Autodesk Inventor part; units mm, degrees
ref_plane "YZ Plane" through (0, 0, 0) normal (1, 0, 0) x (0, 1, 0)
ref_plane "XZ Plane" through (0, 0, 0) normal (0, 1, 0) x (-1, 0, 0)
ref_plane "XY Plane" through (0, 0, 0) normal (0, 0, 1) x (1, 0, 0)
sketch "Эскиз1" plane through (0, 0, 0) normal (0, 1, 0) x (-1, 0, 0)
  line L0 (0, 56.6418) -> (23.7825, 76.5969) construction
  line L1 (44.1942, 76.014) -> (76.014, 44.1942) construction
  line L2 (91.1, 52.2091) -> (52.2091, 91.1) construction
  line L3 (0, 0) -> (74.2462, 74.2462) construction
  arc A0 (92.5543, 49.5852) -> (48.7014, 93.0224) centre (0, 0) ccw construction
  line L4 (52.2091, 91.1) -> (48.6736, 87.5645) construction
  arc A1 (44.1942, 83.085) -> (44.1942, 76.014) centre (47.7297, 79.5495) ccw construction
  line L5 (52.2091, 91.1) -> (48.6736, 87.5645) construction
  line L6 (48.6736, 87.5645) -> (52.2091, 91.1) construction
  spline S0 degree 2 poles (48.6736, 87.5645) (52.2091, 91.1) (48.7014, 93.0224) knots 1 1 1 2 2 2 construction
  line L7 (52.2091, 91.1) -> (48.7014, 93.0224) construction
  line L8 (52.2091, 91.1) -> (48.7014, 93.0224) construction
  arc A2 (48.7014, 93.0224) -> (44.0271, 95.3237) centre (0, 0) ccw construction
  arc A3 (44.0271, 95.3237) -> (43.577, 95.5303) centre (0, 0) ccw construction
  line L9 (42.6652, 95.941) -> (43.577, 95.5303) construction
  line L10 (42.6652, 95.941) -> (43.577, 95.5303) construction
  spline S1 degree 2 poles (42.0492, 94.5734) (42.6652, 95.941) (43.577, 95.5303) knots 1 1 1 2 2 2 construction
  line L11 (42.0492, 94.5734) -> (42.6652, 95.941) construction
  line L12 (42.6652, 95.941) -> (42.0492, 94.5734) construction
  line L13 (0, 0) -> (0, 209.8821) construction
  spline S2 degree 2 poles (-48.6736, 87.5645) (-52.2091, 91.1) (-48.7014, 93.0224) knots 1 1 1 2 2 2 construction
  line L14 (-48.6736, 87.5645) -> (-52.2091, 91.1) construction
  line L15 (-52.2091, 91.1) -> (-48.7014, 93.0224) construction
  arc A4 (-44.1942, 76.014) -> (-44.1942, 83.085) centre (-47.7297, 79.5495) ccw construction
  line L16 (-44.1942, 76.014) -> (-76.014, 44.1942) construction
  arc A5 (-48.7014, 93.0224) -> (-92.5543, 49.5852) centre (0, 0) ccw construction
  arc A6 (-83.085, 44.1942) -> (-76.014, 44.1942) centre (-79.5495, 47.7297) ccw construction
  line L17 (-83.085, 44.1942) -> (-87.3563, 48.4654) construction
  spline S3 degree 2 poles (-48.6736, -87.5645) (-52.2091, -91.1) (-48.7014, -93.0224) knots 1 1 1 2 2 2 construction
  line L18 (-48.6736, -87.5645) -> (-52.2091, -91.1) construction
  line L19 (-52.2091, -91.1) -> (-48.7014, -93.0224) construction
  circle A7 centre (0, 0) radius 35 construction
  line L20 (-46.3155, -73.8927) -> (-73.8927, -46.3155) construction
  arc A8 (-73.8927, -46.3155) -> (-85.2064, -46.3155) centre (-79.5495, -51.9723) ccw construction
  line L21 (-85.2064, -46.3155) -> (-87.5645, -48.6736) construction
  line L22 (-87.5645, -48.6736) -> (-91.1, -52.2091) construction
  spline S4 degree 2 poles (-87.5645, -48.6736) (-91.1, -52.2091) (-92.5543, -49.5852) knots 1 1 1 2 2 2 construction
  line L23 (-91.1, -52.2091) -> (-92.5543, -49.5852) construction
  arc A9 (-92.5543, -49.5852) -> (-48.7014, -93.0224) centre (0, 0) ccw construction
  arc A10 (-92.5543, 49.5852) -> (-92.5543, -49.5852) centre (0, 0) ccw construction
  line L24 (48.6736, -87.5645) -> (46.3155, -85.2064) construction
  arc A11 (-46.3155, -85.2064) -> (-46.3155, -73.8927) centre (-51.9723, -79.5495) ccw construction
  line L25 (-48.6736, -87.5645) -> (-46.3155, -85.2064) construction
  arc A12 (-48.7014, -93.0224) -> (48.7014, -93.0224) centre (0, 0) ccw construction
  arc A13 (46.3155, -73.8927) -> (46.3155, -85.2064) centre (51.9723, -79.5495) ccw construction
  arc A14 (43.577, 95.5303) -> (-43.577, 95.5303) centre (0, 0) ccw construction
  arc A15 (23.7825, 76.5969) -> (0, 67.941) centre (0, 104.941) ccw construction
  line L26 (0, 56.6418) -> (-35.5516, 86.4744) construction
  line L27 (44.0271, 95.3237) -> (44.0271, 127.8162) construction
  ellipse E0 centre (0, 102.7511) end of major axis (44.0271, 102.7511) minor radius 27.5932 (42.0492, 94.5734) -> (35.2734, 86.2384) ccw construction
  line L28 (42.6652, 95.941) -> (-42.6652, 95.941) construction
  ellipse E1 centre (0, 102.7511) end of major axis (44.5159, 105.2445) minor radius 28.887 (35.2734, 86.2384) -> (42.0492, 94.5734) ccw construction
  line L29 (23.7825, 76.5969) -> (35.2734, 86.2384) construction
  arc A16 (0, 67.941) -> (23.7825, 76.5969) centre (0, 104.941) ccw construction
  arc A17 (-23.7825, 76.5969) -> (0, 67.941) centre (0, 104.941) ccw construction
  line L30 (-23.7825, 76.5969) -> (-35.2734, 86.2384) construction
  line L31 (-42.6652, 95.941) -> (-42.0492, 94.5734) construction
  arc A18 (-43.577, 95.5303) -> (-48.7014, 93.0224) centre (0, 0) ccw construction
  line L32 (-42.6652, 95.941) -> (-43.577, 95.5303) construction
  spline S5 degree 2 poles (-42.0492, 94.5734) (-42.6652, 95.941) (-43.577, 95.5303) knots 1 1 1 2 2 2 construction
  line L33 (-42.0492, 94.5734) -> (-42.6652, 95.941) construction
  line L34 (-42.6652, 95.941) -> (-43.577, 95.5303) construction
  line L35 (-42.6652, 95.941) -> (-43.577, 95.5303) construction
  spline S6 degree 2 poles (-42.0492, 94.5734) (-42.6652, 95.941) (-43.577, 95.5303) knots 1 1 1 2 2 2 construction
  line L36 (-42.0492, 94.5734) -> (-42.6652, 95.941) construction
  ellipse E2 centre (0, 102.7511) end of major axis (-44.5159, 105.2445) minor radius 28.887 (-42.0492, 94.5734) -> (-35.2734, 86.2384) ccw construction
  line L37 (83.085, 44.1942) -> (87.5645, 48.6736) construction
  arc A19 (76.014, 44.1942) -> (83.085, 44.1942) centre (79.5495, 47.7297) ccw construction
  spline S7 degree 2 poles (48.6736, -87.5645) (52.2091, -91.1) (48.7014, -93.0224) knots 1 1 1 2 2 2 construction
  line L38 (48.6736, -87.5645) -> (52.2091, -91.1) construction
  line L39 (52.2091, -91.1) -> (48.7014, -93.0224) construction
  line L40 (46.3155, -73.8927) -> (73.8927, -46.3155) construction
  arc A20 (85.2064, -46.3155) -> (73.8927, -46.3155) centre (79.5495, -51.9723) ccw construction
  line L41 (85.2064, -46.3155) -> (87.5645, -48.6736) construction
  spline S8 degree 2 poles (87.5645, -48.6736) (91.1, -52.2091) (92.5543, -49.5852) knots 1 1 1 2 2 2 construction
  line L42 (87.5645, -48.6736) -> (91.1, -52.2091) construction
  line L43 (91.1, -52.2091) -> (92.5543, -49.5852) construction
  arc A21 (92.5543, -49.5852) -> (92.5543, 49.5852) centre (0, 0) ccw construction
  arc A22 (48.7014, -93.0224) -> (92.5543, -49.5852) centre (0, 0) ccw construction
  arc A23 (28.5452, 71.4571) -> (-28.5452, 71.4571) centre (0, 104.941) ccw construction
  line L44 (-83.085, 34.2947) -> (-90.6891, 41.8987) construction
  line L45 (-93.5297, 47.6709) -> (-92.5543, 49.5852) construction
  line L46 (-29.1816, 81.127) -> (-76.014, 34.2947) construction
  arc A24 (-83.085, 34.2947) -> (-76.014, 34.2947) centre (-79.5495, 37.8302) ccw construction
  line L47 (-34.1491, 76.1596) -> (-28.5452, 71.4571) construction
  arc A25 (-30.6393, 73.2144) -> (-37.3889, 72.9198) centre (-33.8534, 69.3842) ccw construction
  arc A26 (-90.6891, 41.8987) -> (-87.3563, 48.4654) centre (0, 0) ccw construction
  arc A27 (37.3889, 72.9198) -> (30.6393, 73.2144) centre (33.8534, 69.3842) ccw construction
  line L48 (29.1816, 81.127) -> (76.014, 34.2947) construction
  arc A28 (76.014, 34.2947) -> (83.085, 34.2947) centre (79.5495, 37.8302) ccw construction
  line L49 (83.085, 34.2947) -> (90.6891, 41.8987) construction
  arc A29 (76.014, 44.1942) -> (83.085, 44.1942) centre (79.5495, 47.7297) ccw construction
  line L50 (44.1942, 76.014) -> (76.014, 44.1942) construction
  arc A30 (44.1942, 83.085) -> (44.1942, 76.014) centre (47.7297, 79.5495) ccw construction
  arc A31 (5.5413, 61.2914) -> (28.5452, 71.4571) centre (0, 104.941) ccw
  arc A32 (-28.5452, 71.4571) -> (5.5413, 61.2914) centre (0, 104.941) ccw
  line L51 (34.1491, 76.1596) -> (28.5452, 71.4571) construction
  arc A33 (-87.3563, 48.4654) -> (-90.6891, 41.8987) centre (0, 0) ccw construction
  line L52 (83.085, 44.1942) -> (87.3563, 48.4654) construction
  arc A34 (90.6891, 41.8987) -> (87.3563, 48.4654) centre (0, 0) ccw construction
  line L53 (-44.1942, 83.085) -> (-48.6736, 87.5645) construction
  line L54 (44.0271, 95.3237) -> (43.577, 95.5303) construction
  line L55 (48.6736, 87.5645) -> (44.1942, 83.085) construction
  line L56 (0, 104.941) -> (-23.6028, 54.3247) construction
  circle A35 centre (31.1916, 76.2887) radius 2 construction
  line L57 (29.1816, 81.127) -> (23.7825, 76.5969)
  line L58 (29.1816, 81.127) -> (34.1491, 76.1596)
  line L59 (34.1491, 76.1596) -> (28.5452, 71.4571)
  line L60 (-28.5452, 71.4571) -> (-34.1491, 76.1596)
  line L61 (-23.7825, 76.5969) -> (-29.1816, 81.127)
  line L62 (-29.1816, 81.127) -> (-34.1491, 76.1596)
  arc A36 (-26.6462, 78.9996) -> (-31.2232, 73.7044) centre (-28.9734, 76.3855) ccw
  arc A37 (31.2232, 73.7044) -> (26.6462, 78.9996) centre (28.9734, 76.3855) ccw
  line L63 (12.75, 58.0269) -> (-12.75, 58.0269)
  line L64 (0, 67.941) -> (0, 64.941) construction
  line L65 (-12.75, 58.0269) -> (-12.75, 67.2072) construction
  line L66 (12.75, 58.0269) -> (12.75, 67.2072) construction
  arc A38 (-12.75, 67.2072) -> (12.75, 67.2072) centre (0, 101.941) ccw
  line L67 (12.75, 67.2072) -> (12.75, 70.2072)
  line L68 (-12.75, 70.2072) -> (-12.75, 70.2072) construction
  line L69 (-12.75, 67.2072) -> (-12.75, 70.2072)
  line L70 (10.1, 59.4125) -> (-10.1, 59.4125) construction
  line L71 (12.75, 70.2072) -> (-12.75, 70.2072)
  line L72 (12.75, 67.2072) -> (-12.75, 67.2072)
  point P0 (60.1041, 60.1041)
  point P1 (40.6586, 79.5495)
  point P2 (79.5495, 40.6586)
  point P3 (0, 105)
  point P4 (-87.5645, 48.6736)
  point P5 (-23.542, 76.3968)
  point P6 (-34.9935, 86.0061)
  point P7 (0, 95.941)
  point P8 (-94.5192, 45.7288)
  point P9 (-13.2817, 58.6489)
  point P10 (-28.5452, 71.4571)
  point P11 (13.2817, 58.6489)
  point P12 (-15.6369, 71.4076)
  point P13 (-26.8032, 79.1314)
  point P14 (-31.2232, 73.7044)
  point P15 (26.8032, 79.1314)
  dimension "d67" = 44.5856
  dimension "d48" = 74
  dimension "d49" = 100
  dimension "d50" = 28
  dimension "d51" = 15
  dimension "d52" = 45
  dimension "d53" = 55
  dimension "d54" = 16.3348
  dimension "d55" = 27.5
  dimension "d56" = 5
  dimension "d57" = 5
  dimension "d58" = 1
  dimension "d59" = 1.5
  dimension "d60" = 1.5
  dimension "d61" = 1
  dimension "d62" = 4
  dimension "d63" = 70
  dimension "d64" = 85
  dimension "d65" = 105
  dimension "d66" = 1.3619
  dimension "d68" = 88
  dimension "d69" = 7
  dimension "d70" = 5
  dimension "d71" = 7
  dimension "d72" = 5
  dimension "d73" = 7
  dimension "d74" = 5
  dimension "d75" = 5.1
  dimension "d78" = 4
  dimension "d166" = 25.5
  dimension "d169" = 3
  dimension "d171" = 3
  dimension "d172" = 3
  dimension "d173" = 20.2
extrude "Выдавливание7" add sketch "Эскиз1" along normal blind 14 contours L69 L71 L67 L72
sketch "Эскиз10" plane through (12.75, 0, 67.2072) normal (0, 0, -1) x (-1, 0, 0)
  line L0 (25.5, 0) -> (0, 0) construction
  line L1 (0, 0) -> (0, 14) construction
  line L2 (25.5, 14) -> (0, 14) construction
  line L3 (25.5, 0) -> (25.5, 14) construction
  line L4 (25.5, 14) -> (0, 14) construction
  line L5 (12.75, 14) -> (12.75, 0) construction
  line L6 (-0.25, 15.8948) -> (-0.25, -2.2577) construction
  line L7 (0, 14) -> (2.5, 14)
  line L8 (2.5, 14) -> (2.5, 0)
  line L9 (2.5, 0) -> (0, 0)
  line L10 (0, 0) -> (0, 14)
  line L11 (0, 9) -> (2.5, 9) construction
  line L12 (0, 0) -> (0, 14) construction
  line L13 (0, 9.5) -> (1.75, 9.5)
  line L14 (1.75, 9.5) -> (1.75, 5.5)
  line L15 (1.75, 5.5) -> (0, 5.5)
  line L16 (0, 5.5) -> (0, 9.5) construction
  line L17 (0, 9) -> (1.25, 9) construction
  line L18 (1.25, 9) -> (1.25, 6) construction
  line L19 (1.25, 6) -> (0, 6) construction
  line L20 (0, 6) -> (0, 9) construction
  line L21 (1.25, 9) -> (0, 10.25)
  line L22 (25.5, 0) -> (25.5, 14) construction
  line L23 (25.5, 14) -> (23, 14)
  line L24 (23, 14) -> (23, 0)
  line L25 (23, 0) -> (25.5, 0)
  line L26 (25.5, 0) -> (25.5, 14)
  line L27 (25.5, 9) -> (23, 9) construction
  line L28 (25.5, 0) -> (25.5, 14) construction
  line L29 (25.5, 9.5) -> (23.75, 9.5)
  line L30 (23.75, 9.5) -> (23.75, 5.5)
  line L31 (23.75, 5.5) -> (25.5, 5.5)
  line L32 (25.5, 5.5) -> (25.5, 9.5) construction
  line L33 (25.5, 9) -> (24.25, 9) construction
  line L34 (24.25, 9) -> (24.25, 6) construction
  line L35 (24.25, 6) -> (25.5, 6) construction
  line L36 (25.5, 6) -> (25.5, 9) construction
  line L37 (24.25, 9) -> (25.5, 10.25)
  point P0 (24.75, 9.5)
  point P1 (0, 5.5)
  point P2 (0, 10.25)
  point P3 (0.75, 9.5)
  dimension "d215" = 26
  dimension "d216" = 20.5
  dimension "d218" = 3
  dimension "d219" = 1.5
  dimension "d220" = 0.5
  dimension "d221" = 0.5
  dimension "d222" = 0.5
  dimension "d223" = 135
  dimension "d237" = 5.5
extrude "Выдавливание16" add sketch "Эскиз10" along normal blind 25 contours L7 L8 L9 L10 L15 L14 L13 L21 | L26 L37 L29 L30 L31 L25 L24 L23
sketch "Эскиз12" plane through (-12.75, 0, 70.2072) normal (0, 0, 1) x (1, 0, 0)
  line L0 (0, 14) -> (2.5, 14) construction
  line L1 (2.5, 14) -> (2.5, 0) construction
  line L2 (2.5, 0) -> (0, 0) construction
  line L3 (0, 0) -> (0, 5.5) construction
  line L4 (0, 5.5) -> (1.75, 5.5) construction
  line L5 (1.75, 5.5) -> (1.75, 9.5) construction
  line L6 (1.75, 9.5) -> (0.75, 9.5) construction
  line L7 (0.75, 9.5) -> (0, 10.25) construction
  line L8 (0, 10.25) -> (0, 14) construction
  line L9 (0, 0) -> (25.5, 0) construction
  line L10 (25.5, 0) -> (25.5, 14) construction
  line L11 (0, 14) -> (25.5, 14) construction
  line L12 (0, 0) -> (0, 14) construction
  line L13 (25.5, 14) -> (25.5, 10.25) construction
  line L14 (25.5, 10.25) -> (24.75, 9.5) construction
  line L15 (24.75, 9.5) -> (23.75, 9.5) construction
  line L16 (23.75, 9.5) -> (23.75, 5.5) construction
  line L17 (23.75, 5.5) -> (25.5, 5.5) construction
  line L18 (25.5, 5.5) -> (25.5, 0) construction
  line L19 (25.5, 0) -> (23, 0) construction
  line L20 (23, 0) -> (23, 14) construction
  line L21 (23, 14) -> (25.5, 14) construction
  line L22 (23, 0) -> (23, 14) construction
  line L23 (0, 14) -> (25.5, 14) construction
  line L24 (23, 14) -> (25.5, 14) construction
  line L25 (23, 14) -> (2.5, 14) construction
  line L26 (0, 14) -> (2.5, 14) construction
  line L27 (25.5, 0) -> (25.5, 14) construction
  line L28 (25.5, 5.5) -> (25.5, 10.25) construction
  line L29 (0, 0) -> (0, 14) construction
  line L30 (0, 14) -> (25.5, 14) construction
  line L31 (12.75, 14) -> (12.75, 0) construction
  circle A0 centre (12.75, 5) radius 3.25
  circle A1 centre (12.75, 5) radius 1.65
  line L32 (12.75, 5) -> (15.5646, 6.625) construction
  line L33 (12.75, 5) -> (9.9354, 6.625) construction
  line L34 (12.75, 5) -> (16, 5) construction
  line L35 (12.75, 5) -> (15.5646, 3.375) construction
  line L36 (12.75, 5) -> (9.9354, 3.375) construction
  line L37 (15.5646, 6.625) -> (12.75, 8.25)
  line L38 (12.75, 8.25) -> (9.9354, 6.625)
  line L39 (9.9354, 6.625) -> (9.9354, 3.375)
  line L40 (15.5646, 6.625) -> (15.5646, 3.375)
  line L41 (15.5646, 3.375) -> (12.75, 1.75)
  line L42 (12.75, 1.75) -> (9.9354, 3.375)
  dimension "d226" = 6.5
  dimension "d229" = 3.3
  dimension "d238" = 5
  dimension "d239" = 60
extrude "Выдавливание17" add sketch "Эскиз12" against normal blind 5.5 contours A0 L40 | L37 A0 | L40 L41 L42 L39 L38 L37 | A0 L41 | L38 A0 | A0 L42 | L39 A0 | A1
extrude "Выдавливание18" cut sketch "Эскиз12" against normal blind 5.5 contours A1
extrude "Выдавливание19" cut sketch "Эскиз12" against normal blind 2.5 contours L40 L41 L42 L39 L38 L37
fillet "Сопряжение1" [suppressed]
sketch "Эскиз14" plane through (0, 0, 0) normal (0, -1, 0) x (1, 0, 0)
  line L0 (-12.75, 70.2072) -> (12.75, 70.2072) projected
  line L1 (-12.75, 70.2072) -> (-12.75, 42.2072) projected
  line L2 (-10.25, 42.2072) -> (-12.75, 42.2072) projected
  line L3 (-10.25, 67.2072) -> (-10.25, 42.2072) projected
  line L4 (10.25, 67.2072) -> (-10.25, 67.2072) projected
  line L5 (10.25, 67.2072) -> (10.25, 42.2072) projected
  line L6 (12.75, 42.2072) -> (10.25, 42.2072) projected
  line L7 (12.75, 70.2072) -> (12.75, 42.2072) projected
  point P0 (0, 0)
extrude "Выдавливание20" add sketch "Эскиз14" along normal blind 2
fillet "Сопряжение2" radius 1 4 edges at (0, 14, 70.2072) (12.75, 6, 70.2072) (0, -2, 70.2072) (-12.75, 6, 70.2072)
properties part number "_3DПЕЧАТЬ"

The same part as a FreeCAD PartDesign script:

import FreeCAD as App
import Part
import Sketcher
from FreeCAD import Vector
Q = App.Units.Quantity


def edges_at(feature, points):
    """Names of the edges that pass closest to the given points."""
    edges = feature.Shape.Edges
    near = lambda p: min(range(len(edges)), key=lambda i: edges[i].distToShape(Part.Vertex(*p))[0])
    return sorted({f"Edge{near(p) + 1}" for p in points})


def add_polygon(sketch, points):
    """Adds a closed chain of lines whose ends are joined by coincident constraints."""
    first, n = sketch.GeometryCount, len(points)
    for a, b in zip(points, points[1:] + points[:1]):
        sketch.addGeometry(Part.LineSegment(App.Vector(*a, 0), App.Vector(*b, 0)), False)
    for i in range(n):
        sketch.addConstraint(Sketcher.Constraint("Coincident", first + i, 2, first + (i + 1) % n, 1))

doc = App.newDocument("Part")
body = doc.addObject("PartDesign::Body", "Body")

# Sketch on XZ plane
sketch1 = body.newObject("Sketcher::SketchObject", "Sketch")
sketch1.AttachmentSupport = (doc.getObject("XZ_Plane"), [""])
sketch1.MapMode = "FlatFace"
add_polygon(sketch1, [(12.8, 70.2), (12.8, 67.2), (-12.8, 67.2), (-12.8, 70.2)])  # lines 0-3
sketch1.addConstraint(Sketcher.Constraint("Vertical", 0))
sketch1.addConstraint(Sketcher.Constraint("Horizontal", 1))
sketch1.addConstraint(Sketcher.Constraint("Vertical", 2))
sketch1.addConstraint(Sketcher.Constraint("Horizontal", 3))
sketch1.addConstraint(Sketcher.Constraint("DistanceY", 0, 2, 0, 1, 3.0))
sketch1.addConstraint(Sketcher.Constraint("DistanceX", 1, 2, 1, 1, 25.5))
sketch1.addConstraint(Sketcher.Constraint("DistanceX", -1, 1, 0, 2, 12.75))
sketch1.addConstraint(Sketcher.Constraint("DistanceY", -1, 1, 0, 2, 67.2072))
pad1 = body.newObject("PartDesign::Pad", "Pad")
pad1.Profile = sketch1
pad1.Length = 14
pad1.Reversed = True

# Sketch on XY plane
sketch2 = body.newObject("Sketcher::SketchObject", "Sketch001")
sketch2.AttachmentSupport = (doc.getObject("XY_Plane"), [""])
sketch2.MapMode = "FlatFace"
sketch2.AttachmentOffset = App.Placement(Vector(0, 0, 67.2072), App.Rotation())
add_polygon(sketch2, [(10.2, 14), (12.8, 14), (12.8, 10.2), (12, 9.5), (11, 9.5), (11, 5.5), (12.8, 5.5), (12.8, 0), (10.2, 0)])  # lines 0-8
add_polygon(sketch2, [(-12.8, 10.2), (-12.8, 14), (-10.2, 14), (-10.2, 0), (-12.8, 0), (-12.8, 5.5), (-11, 5.5), (-11, 9.5), (-12, 9.5)])  # lines 9-17
sketch2.addConstraint(Sketcher.Constraint("Horizontal", 0))
sketch2.addConstraint(Sketcher.Constraint("Vertical", 1))
sketch2.addConstraint(Sketcher.Constraint("Horizontal", 3))
sketch2.addConstraint(Sketcher.Constraint("Vertical", 4))
sketch2.addConstraint(Sketcher.Constraint("Horizontal", 5))
sketch2.addConstraint(Sketcher.Constraint("Vertical", 6))
sketch2.addConstraint(Sketcher.Constraint("Horizontal", 7))
sketch2.addConstraint(Sketcher.Constraint("Vertical", 8))
sketch2.addConstraint(Sketcher.Constraint("Vertical", 9))
sketch2.addConstraint(Sketcher.Constraint("Horizontal", 10))
sketch2.addConstraint(Sketcher.Constraint("Vertical", 11))
sketch2.addConstraint(Sketcher.Constraint("Horizontal", 12))
sketch2.addConstraint(Sketcher.Constraint("Vertical", 13))
sketch2.addConstraint(Sketcher.Constraint("Horizontal", 14))
sketch2.addConstraint(Sketcher.Constraint("Vertical", 15))
sketch2.addConstraint(Sketcher.Constraint("Horizontal", 16))
sketch2.addConstraint(Sketcher.Constraint("Symmetric", 7, 2, 11, 2, -1, 1))
sketch2.addConstraint(Sketcher.Constraint("Symmetric", 0, 2, 9, 2, -2))
sketch2.addConstraint(Sketcher.Constraint("Symmetric", 6, 2, 12, 2, -2))
sketch2.addConstraint(Sketcher.Constraint("Symmetric", 4, 2, 14, 2, -2))
sketch2.addConstraint(Sketcher.Constraint("Symmetric", 2, 2, 16, 2, -2))
sketch2.addConstraint(Sketcher.Constraint("Perpendicular", 2, 17))
sketch2.addConstraint(Sketcher.Constraint("Horizontal", 1, 2, 17, 2))
sketch2.addConstraint(Sketcher.Constraint("Vertical", 1, 2, 5, 2))
sketch2.addConstraint(Sketcher.Constraint("DistanceY", 6, 2, 6, 1, 5.5))
sketch2.addConstraint(Sketcher.Constraint("DistanceX", 10, 2, 8, 2, 20.5))
sketch2.addConstraint(Sketcher.Constraint("DistanceX", 3, 2, 3, 1, 1.0))
sketch2.addConstraint(Sketcher.Constraint("DistanceY", 4, 2, 4, 1, 4.0))
sketch2.addConstraint(Sketcher.Constraint("DistanceY", 8, 1, 8, 2, 14.0))
sketch2.addConstraint(Sketcher.Constraint("DistanceX", 0, 1, 0, 2, 2.5))
sketch2.addConstraint(Sketcher.Constraint("DistanceX", -1, 1, 2, 2, 12.0))
pad2 = body.newObject("PartDesign::Pad", "Pad001")
pad2.Profile = sketch2
pad2.Length = 25
pad2.Reversed = True

# Sketch on XY plane
sketch3 = body.newObject("Sketcher::SketchObject", "Sketch002")
sketch3.AttachmentSupport = (doc.getObject("XY_Plane"), [""])
sketch3.MapMode = "FlatFace"
sketch3.AttachmentOffset = App.Placement(Vector(0, 0, 70.2072), App.Rotation())
sketch3.addGeometry(Part.Circle(Vector(0, 5, 0), Vector(0, 0, 1), 3.2), False)
sketch3.addConstraint(Sketcher.Constraint("PointOnObject", 0, 3, -2))
sketch3.addConstraint(Sketcher.Constraint("Diameter", 0, 6.5))
sketch3.addConstraint(Sketcher.Constraint("DistanceY", -1, 1, 0, 3, 5.0))
pad3 = body.newObject("PartDesign::Pad", "Pad002")
pad3.Profile = sketch3
pad3.Length = 5.5
pad3.Reversed = True

# Sketch on XY plane
sketch4 = body.newObject("Sketcher::SketchObject", "Sketch003")
sketch4.AttachmentSupport = (doc.getObject("XY_Plane"), [""])
sketch4.MapMode = "FlatFace"
sketch4.AttachmentOffset = App.Placement(Vector(0, 0, 70.2072), App.Rotation())
sketch4.addGeometry(Part.Circle(Vector(0, 5, 0), Vector(0, 0, 1), 1.6), False)
sketch4.addConstraint(Sketcher.Constraint("PointOnObject", 0, 3, -2))
sketch4.addConstraint(Sketcher.Constraint("Diameter", 0, 3.3))
sketch4.addConstraint(Sketcher.Constraint("DistanceY", -1, 1, 0, 3, 5.0))
pocket1 = body.newObject("PartDesign::Pocket", "Pocket")
pocket1.Profile = sketch4
pocket1.Length = 5.5

# Sketch on XY plane
sketch5 = body.newObject("Sketcher::SketchObject", "Sketch004")
sketch5.AttachmentSupport = (doc.getObject("XY_Plane"), [""])
sketch5.MapMode = "FlatFace"
sketch5.AttachmentOffset = App.Placement(Vector(0, 0, 70.2072), App.Rotation())
add_polygon(sketch5, [(2.8, 3.4), (2.8, 6.6), (0, 8.2), (-2.8, 6.6), (-2.8, 3.4), (0, 1.8)])  # lines 0-5
sketch5.addGeometry(Part.Circle(Vector(0, 5, 0), Vector(0, 0, 1), 1.6), False)  # 6
sketch5.addConstraint(Sketcher.Constraint("Vertical", 0))
sketch5.addConstraint(Sketcher.Constraint("Vertical", 3))
sketch5.addConstraint(Sketcher.Constraint("Symmetric", 0, 2, 2, 2, -2))
sketch5.addConstraint(Sketcher.Constraint("PointOnObject", 6, 3, -2))
sketch5.addConstraint(Sketcher.Constraint("PointOnObject", 1, 2, -2))
sketch5.addConstraint(Sketcher.Constraint("PointOnObject", 4, 2, -2))
sketch5.addConstraint(Sketcher.Constraint("Parallel", 1, 4))
sketch5.addConstraint(Sketcher.Constraint("Parallel", 2, 5))
sketch5.addConstraint(Sketcher.Constraint("Diameter", 6, 3.3))
sketch5.addConstraint(Sketcher.Constraint("DistanceY", -1, 1, 6, 3, 5.0))
sketch5.addConstraint(Sketcher.Constraint("DistanceY", 4, 2, 1, 2, 6.5))
sketch5.addConstraint(Sketcher.Constraint("Angle", 1, Q("150.0002 deg")))
sketch5.addConstraint(Sketcher.Constraint("DistanceY", 0, 1, 0, 2, 3.25))
sketch5.addConstraint(Sketcher.Constraint("DistanceY", -1, 1, 1, 2, 8.25))
pocket2 = body.newObject("PartDesign::Pocket", "Pocket001")
pocket2.Profile = sketch5
pocket2.Length = 2.5

# Sketch on XZ plane
sketch6 = body.newObject("Sketcher::SketchObject", "Sketch005")
sketch6.AttachmentSupport = (doc.getObject("XZ_Plane"), [""])
sketch6.MapMode = "FlatFace"
add_polygon(sketch6, [(12.8, 70.2), (-12.8, 70.2), (-12.8, 42.2), (-10.2, 42.2), (-10.2, 67.2), (10.2, 67.2), (10.2, 42.2), (12.8, 42.2)])  # lines 0-7
sketch6.addConstraint(Sketcher.Constraint("Horizontal", 0))
sketch6.addConstraint(Sketcher.Constraint("Vertical", 1))
sketch6.addConstraint(Sketcher.Constraint("Horizontal", 2))
sketch6.addConstraint(Sketcher.Constraint("Vertical", 3))
sketch6.addConstraint(Sketcher.Constraint("Horizontal", 4))
sketch6.addConstraint(Sketcher.Constraint("Vertical", 5))
sketch6.addConstraint(Sketcher.Constraint("Horizontal", 6))
sketch6.addConstraint(Sketcher.Constraint("Vertical", 7))
sketch6.addConstraint(Sketcher.Constraint("Symmetric", 2, 2, 5, 2, -2))
sketch6.addConstraint(Sketcher.Constraint("Equal", 2, 6))
sketch6.addConstraint(Sketcher.Constraint("DistanceY", 1, 2, 1, 1, 28.0))
sketch6.addConstraint(Sketcher.Constraint("DistanceY", 3, 1, 3, 2, 25.0))
sketch6.addConstraint(Sketcher.Constraint("DistanceX", 0, 2, 0, 1, 25.5))
sketch6.addConstraint(Sketcher.Constraint("DistanceX", 2, 1, 2, 2, 2.5))
sketch6.addConstraint(Sketcher.Constraint("DistanceY", -1, 1, 0, 2, 70.2072))
pad4 = body.newObject("PartDesign::Pad", "Pad003")
pad4.Profile = sketch6
pad4.Length = 2
doc.recompute()

fillet = body.newObject("PartDesign::Fillet", "Fillet")
fillet.Base = (pad4, edges_at(pad4, [
    (0, 14, 70.207),
    (12.75, 6, 70.207),
    (0, -2, 70.207),
    (-12.75, 6, 70.207),
]))
fillet.Radius = 1

doc.recompute()
